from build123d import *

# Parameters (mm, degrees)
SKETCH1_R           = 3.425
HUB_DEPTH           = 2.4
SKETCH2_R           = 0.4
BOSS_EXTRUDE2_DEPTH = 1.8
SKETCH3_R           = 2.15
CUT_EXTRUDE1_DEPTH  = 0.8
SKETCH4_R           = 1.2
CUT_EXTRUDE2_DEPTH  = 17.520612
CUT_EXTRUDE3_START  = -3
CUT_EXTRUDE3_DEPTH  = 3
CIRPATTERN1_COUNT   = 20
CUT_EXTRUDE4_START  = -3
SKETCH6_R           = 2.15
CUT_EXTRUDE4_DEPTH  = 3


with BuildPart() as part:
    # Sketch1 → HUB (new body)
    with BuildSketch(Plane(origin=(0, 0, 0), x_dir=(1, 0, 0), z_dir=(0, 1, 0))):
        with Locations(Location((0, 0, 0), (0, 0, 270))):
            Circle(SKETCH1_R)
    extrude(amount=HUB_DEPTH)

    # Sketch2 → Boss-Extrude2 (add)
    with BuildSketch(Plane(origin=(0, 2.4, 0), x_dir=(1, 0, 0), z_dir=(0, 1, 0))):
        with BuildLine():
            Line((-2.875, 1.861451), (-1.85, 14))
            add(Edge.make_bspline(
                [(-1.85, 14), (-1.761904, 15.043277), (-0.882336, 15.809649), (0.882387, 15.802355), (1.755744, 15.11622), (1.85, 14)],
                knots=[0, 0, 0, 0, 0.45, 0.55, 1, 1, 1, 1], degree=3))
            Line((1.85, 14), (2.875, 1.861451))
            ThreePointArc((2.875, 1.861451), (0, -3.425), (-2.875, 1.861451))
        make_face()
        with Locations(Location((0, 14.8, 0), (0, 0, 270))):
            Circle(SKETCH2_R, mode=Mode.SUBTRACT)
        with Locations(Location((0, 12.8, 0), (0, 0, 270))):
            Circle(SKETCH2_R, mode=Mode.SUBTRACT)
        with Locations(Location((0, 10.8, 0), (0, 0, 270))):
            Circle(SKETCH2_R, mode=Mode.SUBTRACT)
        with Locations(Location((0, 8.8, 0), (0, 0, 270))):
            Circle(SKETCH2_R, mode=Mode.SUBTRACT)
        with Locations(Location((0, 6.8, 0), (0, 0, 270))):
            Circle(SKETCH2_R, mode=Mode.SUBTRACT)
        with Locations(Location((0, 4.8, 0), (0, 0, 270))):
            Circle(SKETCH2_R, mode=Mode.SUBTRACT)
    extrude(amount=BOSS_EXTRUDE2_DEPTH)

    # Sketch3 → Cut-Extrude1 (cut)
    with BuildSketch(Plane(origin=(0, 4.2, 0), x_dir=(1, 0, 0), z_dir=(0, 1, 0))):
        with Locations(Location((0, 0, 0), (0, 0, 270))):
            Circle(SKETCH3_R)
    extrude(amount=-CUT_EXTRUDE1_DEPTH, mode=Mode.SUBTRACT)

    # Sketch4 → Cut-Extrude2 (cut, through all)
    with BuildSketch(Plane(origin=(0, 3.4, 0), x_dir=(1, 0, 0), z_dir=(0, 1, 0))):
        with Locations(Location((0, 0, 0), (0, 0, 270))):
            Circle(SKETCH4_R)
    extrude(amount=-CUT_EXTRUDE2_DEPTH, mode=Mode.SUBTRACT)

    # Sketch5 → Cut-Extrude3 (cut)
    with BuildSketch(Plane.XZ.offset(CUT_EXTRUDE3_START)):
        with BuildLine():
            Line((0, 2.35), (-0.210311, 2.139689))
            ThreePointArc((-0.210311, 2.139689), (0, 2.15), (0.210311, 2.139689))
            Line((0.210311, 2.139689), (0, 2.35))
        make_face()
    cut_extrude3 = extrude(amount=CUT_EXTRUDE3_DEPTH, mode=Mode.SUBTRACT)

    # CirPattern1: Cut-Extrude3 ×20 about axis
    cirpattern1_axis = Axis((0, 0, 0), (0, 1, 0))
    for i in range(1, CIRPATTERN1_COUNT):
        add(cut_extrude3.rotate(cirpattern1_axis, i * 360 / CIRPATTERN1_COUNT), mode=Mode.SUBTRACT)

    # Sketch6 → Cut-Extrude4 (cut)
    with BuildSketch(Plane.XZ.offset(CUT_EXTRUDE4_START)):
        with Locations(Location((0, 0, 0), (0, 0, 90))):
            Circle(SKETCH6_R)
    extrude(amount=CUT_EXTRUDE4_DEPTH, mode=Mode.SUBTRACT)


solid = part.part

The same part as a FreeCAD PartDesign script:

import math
import FreeCAD as App
import Part
import Sketcher

doc = App.newDocument("Part")
body = doc.addObject("PartDesign::Body", "Body")

# Sketch on XZ plane
sketch1 = body.newObject("Sketcher::SketchObject", "Sketch")
sketch1.AttachmentSupport = (doc.getObject("XZ_Plane"), [""])
sketch1.MapMode = "FlatFace"
sketch1.addGeometry(Part.Circle(App.Vector(0, 0, 0), App.Vector(0, 0, 1), 3.4), False)
sketch1.addConstraint(Sketcher.Constraint("Coincident", 0, 3, -1, 1))
sketch1.addConstraint(Sketcher.Constraint("Diameter", 0, 6.85))
pad1 = body.newObject("PartDesign::Pad", "Pad")
pad1.Profile = sketch1
pad1.Length = 2.4
pad1.Reversed = True

# Sketch on XZ plane
sketch2 = body.newObject("Sketcher::SketchObject", "Sketch001")
sketch2.AttachmentSupport = (doc.getObject("XZ_Plane"), [""])
sketch2.MapMode = "FlatFace"
sketch2.AttachmentOffset = App.Placement(App.Vector(0, 0, -2.4), App.Rotation())
sketch2.addGeometry(Part.LineSegment(App.Vector(-1.85, -14, 0), App.Vector(-2.875, -1.861451, 0)), False)
sketch2.addGeometry(Part.ArcOfCircle(Part.Circle(App.Vector(0, 0, 0), App.Vector(0, 0, 1), 3.425), math.radians(-32.921491), math.radians(212.921491)), False)
sketch2.addGeometry(Part.LineSegment(App.Vector(2.875, -1.861451, 0), App.Vector(1.85, -14, 0)), False)
sketch2.addGeometry(Part.BSplineCurve([App.Vector(-1.85, -14, 0), App.Vector(-1.761904, -15.043277, 0), App.Vector(-0.882336, -15.809649, 0), App.Vector(0.882387, -15.802355, 0), App.Vector(1.755744, -15.11622, 0), App.Vector(1.85, -14, 0)], [4, 1, 1, 4], [0, 0.45, 0.55, 1], False, 3, [1, 1, 1, 1, 1, 1], False), False)
sketch2.addGeometry(Part.Circle(App.Vector(0, -4.8, 0), App.Vector(0, 0, 1), 0.4), False)
sketch2.addGeometry(Part.Circle(App.Vector(0, -6.8, 0), App.Vector(0, 0, 1), 0.4), False)
sketch2.addGeometry(Part.Circle(App.Vector(0, -8.8, 0), App.Vector(0, 0, 1), 0.4), False)
sketch2.addGeometry(Part.Circle(App.Vector(0, -10.8, 0), App.Vector(0, 0, 1), 0.4), False)
sketch2.addGeometry(Part.Circle(App.Vector(0, -12.8, 0), App.Vector(0, 0, 1), 0.4), False)
sketch2.addGeometry(Part.Circle(App.Vector(0, -14.8, 0), App.Vector(0, 0, 1), 0.4), False)
sketch2.addConstraint(Sketcher.Constraint("Block", 3))
sketch2.addConstraint(Sketcher.Constraint("Coincident", 0, 2, 1, 2))
sketch2.addConstraint(Sketcher.Constraint("Coincident", 1, 1, 2, 1))
sketch2.addConstraint(Sketcher.Constraint("Coincident", 2, 2, 3, 2))
sketch2.addConstraint(Sketcher.Constraint("Coincident", 3, 1, 0, 1))
sketch2.addConstraint(Sketcher.Constraint("Coincident", 1, 3, -1, 1))
sketch2.addConstraint(Sketcher.Constraint("Equal", 4, 5))
sketch2.addConstraint(Sketcher.Constraint("Equal", 5, 6))
sketch2.addConstraint(Sketcher.Constraint("Equal", 6, 7))
sketch2.addConstraint(Sketcher.Constraint("Equal", 7, 8))
sketch2.addConstraint(Sketcher.Constraint("Equal", 8, 9))
sketch2.addConstraint(Sketcher.Constraint("PointOnObject", 4, 3, -2))
sketch2.addConstraint(Sketcher.Constraint("PointOnObject", 5, 3, -2))
sketch2.addConstraint(Sketcher.Constraint("PointOnObject", 6, 3, -2))
sketch2.addConstraint(Sketcher.Constraint("PointOnObject", 7, 3, -2))
sketch2.addConstraint(Sketcher.Constraint("PointOnObject", 8, 3, -2))
sketch2.addConstraint(Sketcher.Constraint("PointOnObject", 9, 3, -2))
sketch2.addConstraint(Sketcher.Constraint("Horizontal", 0, 2, 1, 1))
sketch2.addConstraint(Sketcher.Constraint("Diameter", 4, 0.8))
sketch2.addConstraint(Sketcher.Constraint("Radius", 1, 3.425))
sketch2.addConstraint(Sketcher.Constraint("DistanceY", 5, 3, 4, 3, 2.0))
sketch2.addConstraint(Sketcher.Constraint("DistanceY", 6, 3, 5, 3, 2.0))
sketch2.addConstraint(Sketcher.Constraint("DistanceY", 7, 3, 6, 3, 2.0))
sketch2.addConstraint(Sketcher.Constraint("DistanceY", 8, 3, 7, 3, 2.0))
sketch2.addConstraint(Sketcher.Constraint("DistanceY", 9, 3, 8, 3, 2.0))
sketch2.addConstraint(Sketcher.Constraint("DistanceY", 4, 3, -1, 1, 4.8))
sketch2.addConstraint(Sketcher.Constraint("DistanceX", 0, 2, 1, 1, 5.75))
pad2 = body.newObject("PartDesign::Pad", "Pad001")
pad2.Profile = sketch2
pad2.Length = 1.8
pad2.Reversed = True

# Sketch on XZ plane
sketch3 = body.newObject("Sketcher::SketchObject", "Sketch002")
sketch3.AttachmentSupport = (doc.getObject("XZ_Plane"), [""])
sketch3.MapMode = "FlatFace"
sketch3.AttachmentOffset = App.Placement(App.Vector(0, 0, -4.2), App.Rotation())
sketch3.addGeometry(Part.Circle(App.Vector(0, 0, 0), App.Vector(0, 0, 1), 2.1), False)
sketch3.addConstraint(Sketcher.Constraint("Coincident", 0, 3, -1, 1))
sketch3.addConstraint(Sketcher.Constraint("Diameter", 0, 4.3))
pocket1 = body.newObject("PartDesign::Pocket", "Pocket")
pocket1.Profile = sketch3
pocket1.Length = 0.8
pocket1.Reversed = True

# Sketch on XZ plane
sketch4 = body.newObject("Sketcher::SketchObject", "Sketch003")
sketch4.AttachmentSupport = (doc.getObject("XZ_Plane"), [""])
sketch4.MapMode = "FlatFace"
sketch4.AttachmentOffset = App.Placement(App.Vector(0, 0, -3.4), App.Rotation())
sketch4.addGeometry(Part.Circle(App.Vector(0, 0, 0), App.Vector(0, 0, 1), 1.2), False)
sketch4.addConstraint(Sketcher.Constraint("Coincident", 0, 3, -1, 1))
sketch4.addConstraint(Sketcher.Constraint("Diameter", 0, 2.4))
pocket2 = body.newObject("PartDesign::Pocket", "Pocket001")
pocket2.Profile = sketch4
pocket2.Type = "ThroughAll"
pocket2.Reversed = True

# Sketch on XZ plane
sketch5 = body.newObject("Sketcher::SketchObject", "Sketch004")
sketch5.AttachmentSupport = (doc.getObject("XZ_Plane"), [""])
sketch5.MapMode = "FlatFace"
sketch5.AttachmentOffset = App.Placement(App.Vector(0, 0, -3), App.Rotation())
sketch5.addGeometry(Part.LineSegment(App.Vector(0, 2.35, 0), App.Vector(-0.21, 2.14, 0)), False)
sketch5.addGeometry(Part.ArcOfCircle(Part.Circle(App.Vector(0, 0, 0), App.Vector(0, 0, 1), 2.15), math.radians(84.39), math.radians(95.61)), False)
sketch5.addGeometry(Part.LineSegment(App.Vector(0.21, 2.14, 0), App.Vector(0, 2.35, 0)), False)
sketch5.addConstraint(Sketcher.Constraint("Coincident", 0, 2, 1, 2))
sketch5.addConstraint(Sketcher.Constraint("Coincident", 1, 1, 2, 1))
sketch5.addConstraint(Sketcher.Constraint("Coincident", 2, 2, 0, 1))
sketch5.addConstraint(Sketcher.Constraint("Symmetric", 0, 2, 1, 1, -2))
sketch5.addConstraint(Sketcher.Constraint("PointOnObject", 2, 2, -2))
sketch5.addConstraint(Sketcher.Constraint("Perpendicular", 0, 2))
sketch5.addConstraint(Sketcher.Constraint("DistanceY", -1, 1, 2, 2, 2.35))
sketch5.addConstraint(Sketcher.Constraint("Radius", 1, 2.149987))
sketch5.addConstraint(Sketcher.Constraint("DistanceX", 0, 2, -1, 1, 0.210311))
pocket3 = body.newObject("PartDesign::Pocket", "Pocket002")
pocket3.Profile = sketch5
pocket3.Length = 3
pocket3.Reversed = True
doc.recompute()

polarpattern = body.newObject("PartDesign::PolarPattern", "PolarPattern")
polarpattern.Originals = [pocket3]
polarpattern.Axis = (doc.getObject("Y_Axis"), [""])
polarpattern.Angle = 360
polarpattern.Occurrences = 20
body.Tip = polarpattern

# Sketch on XZ plane
sketch6 = body.newObject("Sketcher::SketchObject", "Sketch005")
sketch6.AttachmentSupport = (doc.getObject("XZ_Plane"), [""])
sketch6.MapMode = "FlatFace"
sketch6.AttachmentOffset = App.Placement(App.Vector(0, 0, -3), App.Rotation())
sketch6.addGeometry(Part.Circle(App.Vector(0, 0, 0), App.Vector(0, 0, 1), 2.1), False)
sketch6.addConstraint(Sketcher.Constraint("Coincident", 0, 3, -1, 1))
sketch6.addConstraint(Sketcher.Constraint("Diameter", 0, 4.3))
pocket4 = body.newObject("PartDesign::Pocket", "Pocket003")
pocket4.Profile = sketch6
pocket4.Length = 3
pocket4.Reversed = True

doc.recompute()
